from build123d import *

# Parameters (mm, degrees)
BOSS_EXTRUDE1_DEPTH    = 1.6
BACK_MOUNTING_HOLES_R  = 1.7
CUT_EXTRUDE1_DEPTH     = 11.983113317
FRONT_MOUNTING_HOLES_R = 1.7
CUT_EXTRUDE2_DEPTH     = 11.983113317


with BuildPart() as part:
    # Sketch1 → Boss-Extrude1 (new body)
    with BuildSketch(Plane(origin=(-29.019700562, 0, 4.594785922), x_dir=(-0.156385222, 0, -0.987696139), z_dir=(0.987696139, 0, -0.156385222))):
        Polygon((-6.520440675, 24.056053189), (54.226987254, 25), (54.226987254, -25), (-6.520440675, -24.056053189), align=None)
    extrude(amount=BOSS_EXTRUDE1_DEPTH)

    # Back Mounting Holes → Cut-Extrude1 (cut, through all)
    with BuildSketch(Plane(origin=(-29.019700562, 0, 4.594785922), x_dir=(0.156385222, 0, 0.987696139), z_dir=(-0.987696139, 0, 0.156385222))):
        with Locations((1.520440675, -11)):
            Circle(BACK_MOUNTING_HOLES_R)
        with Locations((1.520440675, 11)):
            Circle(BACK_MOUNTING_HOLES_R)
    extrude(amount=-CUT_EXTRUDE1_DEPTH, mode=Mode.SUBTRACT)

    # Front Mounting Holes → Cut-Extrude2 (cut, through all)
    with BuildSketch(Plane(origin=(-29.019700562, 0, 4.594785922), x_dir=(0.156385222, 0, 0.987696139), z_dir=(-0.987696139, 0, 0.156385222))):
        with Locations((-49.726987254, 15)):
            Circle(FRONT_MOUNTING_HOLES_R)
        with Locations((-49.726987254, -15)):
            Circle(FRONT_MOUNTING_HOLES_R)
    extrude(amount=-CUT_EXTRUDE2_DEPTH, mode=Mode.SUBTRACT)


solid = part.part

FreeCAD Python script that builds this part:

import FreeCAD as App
import Part
import Sketcher
from FreeCAD import Vector


def add_polygon(sketch, points):
    """Adds a closed chain of lines whose ends are joined by coincident constraints."""
    first, n = sketch.GeometryCount, len(points)
    for a, b in zip(points, points[1:] + points[:1]):
        sketch.addGeometry(Part.LineSegment(App.Vector(*a, 0), App.Vector(*b, 0)), False)
    for i in range(n):
        sketch.addConstraint(Sketcher.Constraint("Coincident", first + i, 2, first + (i + 1) % n, 1))

doc = App.newDocument("Part")
body = doc.addObject("PartDesign::Body", "Body")

# Sketch on an angled plane
sketch1 = doc.addObject("Sketcher::SketchObject", "Sketch")
body.addObject(sketch1)
sketch1.Placement = App.Placement(Vector(-29.019701, 0, 4.594786), App.Rotation(Vector(-0.156385222, 0, -0.987696139), Vector(0, 1.000000001, 0), Vector(0.987696139, 0, -0.156385222), "ZXY"))
add_polygon(sketch1, [(54, 25), (-7, 24), (-7, -24), (54, -25)])  # lines 0-3
sketch1.addConstraint(Sketcher.Constraint("Vertical", 1))
sketch1.addConstraint(Sketcher.Constraint("Vertical", 3))
sketch1.addConstraint(Sketcher.Constraint("Equal", 0, 2))
sketch1.addConstraint(Sketcher.Constraint("DistanceY", 3, 1, 3, 2, 50.0))
sketch1.addConstraint(Sketcher.Constraint("DistanceY", 2, 2, -1, 1, 25.0))
sketch1.addConstraint(Sketcher.Constraint("Distance", 0, 60.754761))
sketch1.addConstraint(Sketcher.Constraint("DistanceY", 1, 2, 1, 1, 48.112106))
sketch1.addConstraint(Sketcher.Constraint("DistanceX", 0, 2, -1, 1, 6.520441))
pad1 = doc.addObject("PartDesign::Pad", "Pad")
body.addObject(pad1)
pad1.Profile = sketch1
pad1.Length = 1.6

# Sketch on an angled plane
sketch2 = doc.addObject("Sketcher::SketchObject", "Sketch001")
body.addObject(sketch2)
sketch2.Placement = App.Placement(Vector(-29.019701, 0, 4.594786), App.Rotation(Vector(0.156385222, 0, 0.987696139), Vector(0, 1.000000001, 0), Vector(-0.987696139, 0, 0.156385222), "ZXY"))
sketch2.addGeometry(Part.Circle(Vector(1.5, -11, 0), Vector(0, 0, 1), 1.7), False)
sketch2.addGeometry(Part.Circle(Vector(1.5, 11, 0), Vector(0, 0, 1), 1.7), False)
sketch2.addConstraint(Sketcher.Constraint("Equal", 0, 1))
sketch2.addConstraint(Sketcher.Constraint("Symmetric", 0, 3, 1, 3, -1))
sketch2.addConstraint(Sketcher.Constraint("Diameter", 0, 3.4))
sketch2.addConstraint(Sketcher.Constraint("DistanceY", 0, 3, -1, 1, 11.0))
sketch2.addConstraint(Sketcher.Constraint("DistanceX", -1, 1, 0, 3, 1.520441))
pocket1 = doc.addObject("PartDesign::Pocket", "Pocket")
body.addObject(pocket1)
pocket1.Profile = sketch2
pocket1.Type = "ThroughAll"

# Sketch on an angled plane
sketch3 = doc.addObject("Sketcher::SketchObject", "Sketch002")
body.addObject(sketch3)
sketch3.Placement = App.Placement(Vector(-29.019701, 0, 4.594786), App.Rotation(Vector(0.156385222, 0, 0.987696139), Vector(0, 1.000000001, 0), Vector(-0.987696139, 0, 0.156385222), "ZXY"))
sketch3.addGeometry(Part.Circle(Vector(-49.7, 15, 0), Vector(0, 0, 1), 1.7), False)
sketch3.addGeometry(Part.Circle(Vector(-49.7, -15, 0), Vector(0, 0, 1), 1.7), False)
sketch3.addConstraint(Sketcher.Constraint("Equal", 0, 1))
sketch3.addConstraint(Sketcher.Constraint("Symmetric", 0, 3, 1, 3, -1))
sketch3.addConstraint(Sketcher.Constraint("Diameter", 0, 3.4))
sketch3.addConstraint(Sketcher.Constraint("DistanceY", -1, 1, 0, 3, 15.0))
sketch3.addConstraint(Sketcher.Constraint("DistanceX", 0, 3, -1, 1, 49.726987))
pocket2 = doc.addObject("PartDesign::Pocket", "Pocket001")
body.addObject(pocket2)
pocket2.Profile = sketch3
pocket2.Type = "ThroughAll"

doc.recompute()
